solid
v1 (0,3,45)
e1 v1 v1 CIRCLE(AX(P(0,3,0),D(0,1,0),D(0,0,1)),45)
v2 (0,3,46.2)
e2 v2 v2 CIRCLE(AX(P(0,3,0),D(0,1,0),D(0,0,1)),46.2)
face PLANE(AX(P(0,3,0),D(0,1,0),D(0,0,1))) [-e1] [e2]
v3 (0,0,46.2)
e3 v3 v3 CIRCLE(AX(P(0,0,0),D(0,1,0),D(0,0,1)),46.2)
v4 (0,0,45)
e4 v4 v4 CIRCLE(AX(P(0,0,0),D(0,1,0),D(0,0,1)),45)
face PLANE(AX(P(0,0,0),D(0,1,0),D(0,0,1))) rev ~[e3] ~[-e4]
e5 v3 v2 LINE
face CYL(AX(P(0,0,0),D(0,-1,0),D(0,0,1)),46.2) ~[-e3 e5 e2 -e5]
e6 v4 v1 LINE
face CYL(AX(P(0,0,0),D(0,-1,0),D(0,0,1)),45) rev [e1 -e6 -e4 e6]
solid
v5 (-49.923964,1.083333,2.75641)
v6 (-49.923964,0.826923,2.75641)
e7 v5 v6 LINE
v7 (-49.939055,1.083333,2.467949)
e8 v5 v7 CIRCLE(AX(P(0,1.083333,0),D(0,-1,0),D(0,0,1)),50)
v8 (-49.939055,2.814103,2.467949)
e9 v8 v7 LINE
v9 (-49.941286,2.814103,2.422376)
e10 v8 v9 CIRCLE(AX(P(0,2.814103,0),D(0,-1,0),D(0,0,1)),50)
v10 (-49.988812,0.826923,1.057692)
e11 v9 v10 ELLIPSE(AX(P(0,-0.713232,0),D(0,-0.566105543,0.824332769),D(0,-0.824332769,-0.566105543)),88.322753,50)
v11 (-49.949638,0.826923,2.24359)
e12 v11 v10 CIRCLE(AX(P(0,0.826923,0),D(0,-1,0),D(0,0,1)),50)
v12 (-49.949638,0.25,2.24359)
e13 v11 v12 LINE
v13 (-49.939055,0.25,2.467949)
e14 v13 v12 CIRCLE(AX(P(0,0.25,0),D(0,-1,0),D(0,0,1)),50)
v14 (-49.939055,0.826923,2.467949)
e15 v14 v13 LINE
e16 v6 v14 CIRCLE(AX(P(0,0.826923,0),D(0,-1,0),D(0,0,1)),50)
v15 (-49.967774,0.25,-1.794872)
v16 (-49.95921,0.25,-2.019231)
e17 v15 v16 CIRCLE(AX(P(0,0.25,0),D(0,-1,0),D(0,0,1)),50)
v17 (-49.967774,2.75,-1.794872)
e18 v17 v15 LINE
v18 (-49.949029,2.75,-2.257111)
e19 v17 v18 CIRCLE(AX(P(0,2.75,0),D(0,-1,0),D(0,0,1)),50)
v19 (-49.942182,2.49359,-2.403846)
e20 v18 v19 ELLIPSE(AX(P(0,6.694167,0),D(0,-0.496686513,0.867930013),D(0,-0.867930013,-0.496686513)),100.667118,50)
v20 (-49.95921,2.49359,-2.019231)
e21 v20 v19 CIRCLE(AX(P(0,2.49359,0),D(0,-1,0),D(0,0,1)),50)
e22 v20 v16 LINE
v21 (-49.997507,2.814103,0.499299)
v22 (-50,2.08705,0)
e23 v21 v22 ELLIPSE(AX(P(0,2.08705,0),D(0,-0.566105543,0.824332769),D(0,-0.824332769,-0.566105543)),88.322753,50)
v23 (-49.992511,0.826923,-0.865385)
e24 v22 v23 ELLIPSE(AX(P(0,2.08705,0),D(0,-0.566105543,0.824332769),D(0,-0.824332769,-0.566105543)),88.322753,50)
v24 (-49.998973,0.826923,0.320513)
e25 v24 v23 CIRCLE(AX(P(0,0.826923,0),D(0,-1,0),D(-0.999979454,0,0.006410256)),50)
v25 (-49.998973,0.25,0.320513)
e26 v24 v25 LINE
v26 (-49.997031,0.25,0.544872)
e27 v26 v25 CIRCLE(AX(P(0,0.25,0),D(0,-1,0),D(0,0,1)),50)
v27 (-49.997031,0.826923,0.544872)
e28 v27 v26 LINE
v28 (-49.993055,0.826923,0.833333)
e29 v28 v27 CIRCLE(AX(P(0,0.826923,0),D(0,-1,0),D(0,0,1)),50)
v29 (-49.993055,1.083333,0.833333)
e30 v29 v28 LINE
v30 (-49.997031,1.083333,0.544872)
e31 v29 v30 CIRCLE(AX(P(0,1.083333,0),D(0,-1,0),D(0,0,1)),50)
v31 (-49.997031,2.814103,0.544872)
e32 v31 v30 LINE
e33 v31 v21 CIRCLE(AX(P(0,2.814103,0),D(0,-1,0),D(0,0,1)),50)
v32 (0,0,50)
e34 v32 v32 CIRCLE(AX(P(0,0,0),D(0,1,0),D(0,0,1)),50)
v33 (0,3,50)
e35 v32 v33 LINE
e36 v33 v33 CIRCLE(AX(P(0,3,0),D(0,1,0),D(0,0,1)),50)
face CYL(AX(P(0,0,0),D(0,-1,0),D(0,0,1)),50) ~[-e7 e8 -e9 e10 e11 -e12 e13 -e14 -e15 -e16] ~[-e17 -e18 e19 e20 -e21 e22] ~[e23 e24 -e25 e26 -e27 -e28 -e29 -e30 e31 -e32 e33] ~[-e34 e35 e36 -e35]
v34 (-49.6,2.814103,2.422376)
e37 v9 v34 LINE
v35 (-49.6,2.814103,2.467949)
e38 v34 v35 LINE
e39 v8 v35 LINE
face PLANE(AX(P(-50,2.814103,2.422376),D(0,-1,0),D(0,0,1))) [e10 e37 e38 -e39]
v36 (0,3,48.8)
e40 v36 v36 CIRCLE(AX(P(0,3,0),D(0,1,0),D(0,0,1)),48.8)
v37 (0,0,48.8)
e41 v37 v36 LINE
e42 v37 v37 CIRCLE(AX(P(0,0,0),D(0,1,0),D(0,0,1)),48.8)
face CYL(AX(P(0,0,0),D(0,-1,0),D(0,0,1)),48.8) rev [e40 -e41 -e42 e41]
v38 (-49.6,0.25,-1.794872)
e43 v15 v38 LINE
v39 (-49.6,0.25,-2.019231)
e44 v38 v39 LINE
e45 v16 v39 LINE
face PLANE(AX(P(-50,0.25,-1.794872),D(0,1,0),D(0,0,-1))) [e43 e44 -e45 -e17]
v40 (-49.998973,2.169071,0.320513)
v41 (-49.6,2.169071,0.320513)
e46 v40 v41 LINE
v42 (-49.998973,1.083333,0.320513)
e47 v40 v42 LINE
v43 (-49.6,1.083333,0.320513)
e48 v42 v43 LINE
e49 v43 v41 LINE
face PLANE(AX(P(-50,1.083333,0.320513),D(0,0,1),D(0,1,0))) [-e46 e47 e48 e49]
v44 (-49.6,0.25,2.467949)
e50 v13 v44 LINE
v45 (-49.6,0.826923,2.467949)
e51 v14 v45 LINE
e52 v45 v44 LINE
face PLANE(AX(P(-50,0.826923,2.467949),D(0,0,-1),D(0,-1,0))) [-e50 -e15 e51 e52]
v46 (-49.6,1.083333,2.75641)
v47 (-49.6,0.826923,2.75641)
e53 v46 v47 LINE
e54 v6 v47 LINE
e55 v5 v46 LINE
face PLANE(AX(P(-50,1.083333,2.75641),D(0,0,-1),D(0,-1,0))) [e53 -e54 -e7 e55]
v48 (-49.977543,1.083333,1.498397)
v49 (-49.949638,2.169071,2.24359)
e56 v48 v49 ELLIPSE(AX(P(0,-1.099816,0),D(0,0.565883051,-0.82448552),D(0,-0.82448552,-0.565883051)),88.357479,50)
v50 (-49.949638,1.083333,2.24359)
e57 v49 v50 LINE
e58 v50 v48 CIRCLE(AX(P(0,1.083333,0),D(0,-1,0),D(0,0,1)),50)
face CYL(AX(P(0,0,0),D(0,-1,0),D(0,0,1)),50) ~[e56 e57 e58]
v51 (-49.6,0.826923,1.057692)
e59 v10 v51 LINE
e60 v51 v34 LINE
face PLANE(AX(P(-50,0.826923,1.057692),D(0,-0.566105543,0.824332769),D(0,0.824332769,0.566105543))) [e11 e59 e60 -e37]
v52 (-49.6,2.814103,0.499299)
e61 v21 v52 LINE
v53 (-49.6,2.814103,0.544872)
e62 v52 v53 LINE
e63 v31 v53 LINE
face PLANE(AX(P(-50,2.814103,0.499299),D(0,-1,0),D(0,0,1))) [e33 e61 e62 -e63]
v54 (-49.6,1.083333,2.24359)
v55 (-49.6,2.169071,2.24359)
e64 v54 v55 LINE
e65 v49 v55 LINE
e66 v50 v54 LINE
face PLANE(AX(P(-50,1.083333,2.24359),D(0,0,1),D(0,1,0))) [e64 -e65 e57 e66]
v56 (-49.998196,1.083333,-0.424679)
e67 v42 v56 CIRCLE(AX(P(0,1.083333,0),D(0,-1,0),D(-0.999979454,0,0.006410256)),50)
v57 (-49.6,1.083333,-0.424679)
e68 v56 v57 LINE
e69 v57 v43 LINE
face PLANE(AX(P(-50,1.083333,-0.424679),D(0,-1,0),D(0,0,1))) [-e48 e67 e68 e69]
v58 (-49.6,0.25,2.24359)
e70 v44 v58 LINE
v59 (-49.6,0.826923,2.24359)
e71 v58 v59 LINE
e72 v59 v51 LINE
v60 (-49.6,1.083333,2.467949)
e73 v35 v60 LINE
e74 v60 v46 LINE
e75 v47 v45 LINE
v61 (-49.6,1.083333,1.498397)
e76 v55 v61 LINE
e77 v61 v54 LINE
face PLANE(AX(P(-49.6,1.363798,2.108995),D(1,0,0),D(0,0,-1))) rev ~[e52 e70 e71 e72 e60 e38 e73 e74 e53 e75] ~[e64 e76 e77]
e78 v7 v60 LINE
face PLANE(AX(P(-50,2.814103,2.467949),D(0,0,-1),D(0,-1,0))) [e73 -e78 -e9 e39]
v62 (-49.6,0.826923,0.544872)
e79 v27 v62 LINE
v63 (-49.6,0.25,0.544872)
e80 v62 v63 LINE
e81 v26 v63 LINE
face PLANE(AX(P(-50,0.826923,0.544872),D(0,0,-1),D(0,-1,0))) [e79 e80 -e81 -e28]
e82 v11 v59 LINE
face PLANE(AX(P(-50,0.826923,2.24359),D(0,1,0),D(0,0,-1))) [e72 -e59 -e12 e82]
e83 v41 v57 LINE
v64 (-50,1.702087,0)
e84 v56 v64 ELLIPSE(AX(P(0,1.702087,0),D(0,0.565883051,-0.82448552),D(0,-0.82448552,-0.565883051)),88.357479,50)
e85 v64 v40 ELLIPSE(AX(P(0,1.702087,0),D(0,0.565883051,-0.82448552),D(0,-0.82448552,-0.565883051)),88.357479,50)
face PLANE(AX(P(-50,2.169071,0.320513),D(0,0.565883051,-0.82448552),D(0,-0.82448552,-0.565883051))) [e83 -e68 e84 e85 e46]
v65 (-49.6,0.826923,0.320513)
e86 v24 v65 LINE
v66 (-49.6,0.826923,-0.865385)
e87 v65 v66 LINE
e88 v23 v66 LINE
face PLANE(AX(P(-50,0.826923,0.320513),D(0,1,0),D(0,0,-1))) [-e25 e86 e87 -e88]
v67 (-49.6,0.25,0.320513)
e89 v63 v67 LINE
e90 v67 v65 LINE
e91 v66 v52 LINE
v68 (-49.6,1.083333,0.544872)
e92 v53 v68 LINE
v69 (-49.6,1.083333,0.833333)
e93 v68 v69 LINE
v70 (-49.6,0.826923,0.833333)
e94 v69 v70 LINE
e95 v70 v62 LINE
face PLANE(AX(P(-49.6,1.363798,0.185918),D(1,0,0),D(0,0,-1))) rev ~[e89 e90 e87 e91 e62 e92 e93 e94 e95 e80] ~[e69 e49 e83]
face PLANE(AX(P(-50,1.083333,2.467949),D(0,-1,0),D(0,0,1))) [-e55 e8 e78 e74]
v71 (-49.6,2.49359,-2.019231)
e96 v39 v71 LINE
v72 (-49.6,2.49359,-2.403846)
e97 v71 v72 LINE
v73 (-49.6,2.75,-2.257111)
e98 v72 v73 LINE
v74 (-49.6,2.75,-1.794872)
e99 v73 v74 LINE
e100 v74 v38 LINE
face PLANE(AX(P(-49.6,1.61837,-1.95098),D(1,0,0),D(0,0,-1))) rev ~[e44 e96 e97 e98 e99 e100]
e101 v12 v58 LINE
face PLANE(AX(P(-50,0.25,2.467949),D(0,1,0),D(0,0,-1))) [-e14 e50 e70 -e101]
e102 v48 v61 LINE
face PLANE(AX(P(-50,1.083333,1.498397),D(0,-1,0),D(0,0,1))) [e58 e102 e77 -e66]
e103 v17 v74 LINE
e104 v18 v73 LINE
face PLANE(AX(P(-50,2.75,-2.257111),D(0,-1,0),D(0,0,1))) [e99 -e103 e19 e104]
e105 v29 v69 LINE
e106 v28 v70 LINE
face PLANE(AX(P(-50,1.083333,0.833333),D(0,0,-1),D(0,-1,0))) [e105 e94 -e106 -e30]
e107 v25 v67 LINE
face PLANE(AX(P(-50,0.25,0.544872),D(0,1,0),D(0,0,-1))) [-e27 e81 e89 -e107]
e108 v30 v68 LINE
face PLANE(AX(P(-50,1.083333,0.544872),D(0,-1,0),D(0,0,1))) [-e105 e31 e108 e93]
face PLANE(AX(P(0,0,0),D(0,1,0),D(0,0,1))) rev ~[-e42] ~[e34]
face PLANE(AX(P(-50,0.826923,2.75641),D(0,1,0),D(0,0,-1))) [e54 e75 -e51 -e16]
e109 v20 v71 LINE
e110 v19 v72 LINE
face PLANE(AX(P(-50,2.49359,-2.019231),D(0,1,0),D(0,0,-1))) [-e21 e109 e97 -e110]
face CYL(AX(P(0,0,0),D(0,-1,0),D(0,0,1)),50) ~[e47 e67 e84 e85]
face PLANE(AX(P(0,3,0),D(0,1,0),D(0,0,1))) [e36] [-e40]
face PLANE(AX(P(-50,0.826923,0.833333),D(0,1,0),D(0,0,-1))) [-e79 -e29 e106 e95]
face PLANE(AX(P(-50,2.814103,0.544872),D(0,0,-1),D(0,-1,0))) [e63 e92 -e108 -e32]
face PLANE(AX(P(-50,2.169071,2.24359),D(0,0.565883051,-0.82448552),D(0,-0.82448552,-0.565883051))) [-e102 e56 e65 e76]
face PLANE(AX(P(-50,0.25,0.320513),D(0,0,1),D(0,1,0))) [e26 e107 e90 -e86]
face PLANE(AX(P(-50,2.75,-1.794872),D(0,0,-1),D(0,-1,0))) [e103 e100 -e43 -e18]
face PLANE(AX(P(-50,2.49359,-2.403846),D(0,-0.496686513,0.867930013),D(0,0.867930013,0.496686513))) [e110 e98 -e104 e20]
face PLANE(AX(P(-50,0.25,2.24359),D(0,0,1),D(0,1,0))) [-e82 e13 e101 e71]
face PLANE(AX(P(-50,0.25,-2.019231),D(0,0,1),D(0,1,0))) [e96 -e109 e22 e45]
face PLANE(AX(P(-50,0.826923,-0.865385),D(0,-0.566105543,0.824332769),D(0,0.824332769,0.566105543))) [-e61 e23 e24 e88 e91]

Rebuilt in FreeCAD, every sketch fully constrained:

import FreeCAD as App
import Part
import Sketcher
Q = App.Units.Quantity


def add_polygon(sketch, points):
    """Adds a closed chain of lines whose ends are joined by coincident constraints."""
    first, n = sketch.GeometryCount, len(points)
    for a, b in zip(points, points[1:] + points[:1]):
        sketch.addGeometry(Part.LineSegment(App.Vector(*a, 0), App.Vector(*b, 0)), False)
    for i in range(n):
        sketch.addConstraint(Sketcher.Constraint("Coincident", first + i, 2, first + (i + 1) % n, 1))

doc = App.newDocument("Part")
body = doc.addObject("PartDesign::Body", "Body")

# Sketch on XZ plane
sketch1 = body.newObject("Sketcher::SketchObject", "Sketch")
sketch1.AttachmentSupport = (doc.getObject("XZ_Plane"), [""])
sketch1.MapMode = "FlatFace"
sketch1.addGeometry(Part.Circle(App.Vector(0, 0, 0), App.Vector(0, 0, 1), 46), False)
sketch1.addGeometry(Part.Circle(App.Vector(0, 0, 0), App.Vector(0, 0, 1), 45), False)
sketch1.addConstraint(Sketcher.Constraint("Coincident", 0, 3, -1, 1))
sketch1.addConstraint(Sketcher.Constraint("Coincident", 1, 3, -1, 1))
sketch1.addConstraint(Sketcher.Constraint("Diameter", 1, Q("90 mm")))
sketch1.addConstraint(Sketcher.Constraint("Diameter", 0, Q("92.4 mm")))
pad1 = body.newObject("PartDesign::Pad", "Pad")
pad1.Profile = sketch1
pad1.Length = 3
pad1.Reversed = True
body2 = doc.addObject("PartDesign::Body", "Body001")

# Sketch on XZ plane
sketch2 = body2.newObject("Sketcher::SketchObject", "Sketch001")
sketch2.AttachmentSupport = (doc.getObject("XZ_Plane001"), [""])
sketch2.MapMode = "FlatFace"
sketch2.addGeometry(Part.Circle(App.Vector(0, 0, 0), App.Vector(0, 0, 1), 50), False)
sketch2.addGeometry(Part.Circle(App.Vector(0, 0, 0), App.Vector(0, 0, 1), 49), False)
sketch2.addConstraint(Sketcher.Constraint("Coincident", 0, 3, -1, 1))
sketch2.addConstraint(Sketcher.Constraint("Coincident", 1, 3, -1, 1))
sketch2.addConstraint(Sketcher.Constraint("Diameter", 0, Q("100 mm")))
sketch2.addConstraint(Sketcher.Constraint("Diameter", 1, Q("97.6 mm")))
pad2 = body2.newObject("PartDesign::Pad", "Pad001")
pad2.Profile = sketch2
pad2.Length = 3
pad2.Reversed = True

# Sketch on YZ plane
sketch3 = body2.newObject("Sketcher::SketchObject", "Sketch002")
sketch3.AttachmentSupport = (doc.getObject("YZ_Plane001"), [""])
sketch3.MapMode = "FlatFace"
sketch3.AttachmentOffset = App.Placement(App.Vector(0, 0, -50), App.Rotation())
add_polygon(sketch3, [(2.75, -1.795), (2.75, -2.257), (2.494, -2.404), (2.494, -2.019), (0.25, -2.019), (0.25, -1.795)])  # lines 0-5
add_polygon(sketch3, [(2.814, 0.545), (2.814, 0.499), (0.827, -0.865), (0.827, 0.321), (0.25, 0.321), (0.25, 0.545), (0.827, 0.545), (0.827, 0.833), (1.083, 0.833), (1.083, 0.545)])  # lines 6-15
add_polygon(sketch3, [(1.083, 0.321), (1.083, -0.425), (2.169, 0.321)])  # lines 16-18
add_polygon(sketch3, [(2.814, 2.468), (2.814, 2.422), (0.827, 1.058), (0.827, 2.244), (0.25, 2.244), (0.25, 2.468), (0.827, 2.468), (0.827, 2.756), (1.083, 2.756), (1.083, 2.468)])  # lines 19-28
add_polygon(sketch3, [(1.083, 2.244), (1.083, 1.498), (2.169, 2.244)])  # lines 29-31
sketch3.addConstraint(Sketcher.Constraint("Vertical", 0))
sketch3.addConstraint(Sketcher.Constraint("Vertical", 2))
sketch3.addConstraint(Sketcher.Constraint("Horizontal", 3))
sketch3.addConstraint(Sketcher.Constraint("Vertical", 4))
sketch3.addConstraint(Sketcher.Constraint("Horizontal", 5))
sketch3.addConstraint(Sketcher.Constraint("Vertical", 6))
sketch3.addConstraint(Sketcher.Constraint("Vertical", 8))
sketch3.addConstraint(Sketcher.Constraint("Horizontal", 9))
sketch3.addConstraint(Sketcher.Constraint("Vertical", 10))
sketch3.addConstraint(Sketcher.Constraint("Horizontal", 11))
sketch3.addConstraint(Sketcher.Constraint("Vertical", 12))
sketch3.addConstraint(Sketcher.Constraint("Horizontal", 13))
sketch3.addConstraint(Sketcher.Constraint("Vertical", 14))
sketch3.addConstraint(Sketcher.Constraint("Horizontal", 15))
sketch3.addConstraint(Sketcher.Constraint("Vertical", 16))
sketch3.addConstraint(Sketcher.Constraint("Horizontal", 18))
sketch3.addConstraint(Sketcher.Constraint("Vertical", 19))
sketch3.addConstraint(Sketcher.Constraint("Vertical", 21))
sketch3.addConstraint(Sketcher.Constraint("Horizontal", 22))
sketch3.addConstraint(Sketcher.Constraint("Vertical", 23))
sketch3.addConstraint(Sketcher.Constraint("Horizontal", 24))
sketch3.addConstraint(Sketcher.Constraint("Vertical", 25))
sketch3.addConstraint(Sketcher.Constraint("Horizontal", 26))
sketch3.addConstraint(Sketcher.Constraint("Vertical", 27))
sketch3.addConstraint(Sketcher.Constraint("Horizontal", 28))
sketch3.addConstraint(Sketcher.Constraint("Vertical", 29))
sketch3.addConstraint(Sketcher.Constraint("Horizontal", 31))
sketch3.addConstraint(Sketcher.Constraint("Parallel", 7, 20))
sketch3.addConstraint(Sketcher.Constraint("Parallel", 17, 30))
sketch3.addConstraint(Sketcher.Constraint("Horizontal", 11, 2, 14, 2))
sketch3.addConstraint(Sketcher.Constraint("Horizontal", 9, 2, 17, 2))
sketch3.addConstraint(Sketcher.Constraint("Horizontal", 24, 2, 27, 2))
sketch3.addConstraint(Sketcher.Constraint("Horizontal", 22, 2, 30, 2))
sketch3.addConstraint(Sketcher.Constraint("Vertical", 4, 2, 9, 2))
sketch3.addConstraint(Sketcher.Constraint("Vertical", 8, 2, 11, 2))
sketch3.addConstraint(Sketcher.Constraint("Vertical", 14, 2, 16, 2))
sketch3.addConstraint(Sketcher.Constraint("Vertical", 15, 2, 19, 2))
sketch3.addConstraint(Sketcher.Constraint("Vertical", 12, 2, 20, 2))
sketch3.addConstraint(Sketcher.Constraint("Vertical", 10, 2, 22, 2))
sketch3.addConstraint(Sketcher.Constraint("Vertical", 21, 2, 24, 2))
sketch3.addConstraint(Sketcher.Constraint("Vertical", 18, 2, 26, 2))
sketch3.addConstraint(Sketcher.Constraint("Vertical", 27, 2, 29, 2))
sketch3.addConstraint(Sketcher.Constraint("Vertical", 17, 2, 30, 2))
sketch3.addConstraint(Sketcher.Constraint("Equal", 4, 10))
sketch3.addConstraint(Sketcher.Constraint("Equal", 6, 19))
sketch3.addConstraint(Sketcher.Constraint("Equal", 8, 21))
sketch3.addConstraint(Sketcher.Constraint("Equal", 14, 25))
sketch3.addConstraint(Sketcher.Constraint("DistanceX", 5, 1, 5, 2, Q("2.5 mm")))
sketch3.addConstraint(Sketcher.Constraint("DistanceX", -1, 1, 0, 2, Q("2.75 mm")))
sketch3.addConstraint(Sketcher.Constraint("DistanceX", 3, 2, 3, 1, Q("2.24359 mm")))
sketch3.addConstraint(Sketcher.Constraint("DistanceX", 13, 1, 13, 2, Q("0.25641 mm")))
sketch3.addConstraint(Sketcher.Constraint("DistanceX", 15, 1, 15, 2, Q("1.730769 mm")))
sketch3.addConstraint(Sketcher.Constraint("DistanceY", 0, 2, 0, 1, Q("0.46224 mm")))
sketch3.addConstraint(Sketcher.Constraint("DistanceY", 4, 1, 4, 2, Q("0.224359 mm")))
sketch3.addConstraint(Sketcher.Constraint("DistanceY", 12, 1, 12, 2, Q("0.288462 mm")))
sketch3.addConstraint(Sketcher.Constraint("DistanceY", -1, 1, 6, 2, Q("0.499299 mm")))
sketch3.addConstraint(Sketcher.Constraint("DistanceX", 9, 2, 9, 1, Q("0.576923 mm")))
sketch3.addConstraint(Sketcher.Constraint("DistanceX", 18, 2, 18, 1, Q("1.085737 mm")))
sketch3.addConstraint(Sketcher.Constraint("DistanceY", 2, 1, 2, 2, Q("0.384615 mm")))
sketch3.addConstraint(Sketcher.Constraint("DistanceY", 6, 2, 6, 1, Q("0.045573 mm")))
sketch3.addConstraint(Sketcher.Constraint("DistanceY", 8, 1, 8, 2, Q("1.185897 mm")))
sketch3.addConstraint(Sketcher.Constraint("DistanceY", 16, 2, 16, 1, Q("0.745192 mm")))
sketch3.addConstraint(Sketcher.Constraint("DistanceY", 0, 2, -1, 1, Q("2.257111 mm")))
sketch3.addConstraint(Sketcher.Constraint("DistanceY", -1, 1, 21, 2, Q("2.24359 mm")))
pocket1 = body2.newObject("PartDesign::Pocket", "Pocket")
pocket1.Profile = sketch3
pocket1.Length = 0.4
pocket1.Reversed = True

doc.recompute()
